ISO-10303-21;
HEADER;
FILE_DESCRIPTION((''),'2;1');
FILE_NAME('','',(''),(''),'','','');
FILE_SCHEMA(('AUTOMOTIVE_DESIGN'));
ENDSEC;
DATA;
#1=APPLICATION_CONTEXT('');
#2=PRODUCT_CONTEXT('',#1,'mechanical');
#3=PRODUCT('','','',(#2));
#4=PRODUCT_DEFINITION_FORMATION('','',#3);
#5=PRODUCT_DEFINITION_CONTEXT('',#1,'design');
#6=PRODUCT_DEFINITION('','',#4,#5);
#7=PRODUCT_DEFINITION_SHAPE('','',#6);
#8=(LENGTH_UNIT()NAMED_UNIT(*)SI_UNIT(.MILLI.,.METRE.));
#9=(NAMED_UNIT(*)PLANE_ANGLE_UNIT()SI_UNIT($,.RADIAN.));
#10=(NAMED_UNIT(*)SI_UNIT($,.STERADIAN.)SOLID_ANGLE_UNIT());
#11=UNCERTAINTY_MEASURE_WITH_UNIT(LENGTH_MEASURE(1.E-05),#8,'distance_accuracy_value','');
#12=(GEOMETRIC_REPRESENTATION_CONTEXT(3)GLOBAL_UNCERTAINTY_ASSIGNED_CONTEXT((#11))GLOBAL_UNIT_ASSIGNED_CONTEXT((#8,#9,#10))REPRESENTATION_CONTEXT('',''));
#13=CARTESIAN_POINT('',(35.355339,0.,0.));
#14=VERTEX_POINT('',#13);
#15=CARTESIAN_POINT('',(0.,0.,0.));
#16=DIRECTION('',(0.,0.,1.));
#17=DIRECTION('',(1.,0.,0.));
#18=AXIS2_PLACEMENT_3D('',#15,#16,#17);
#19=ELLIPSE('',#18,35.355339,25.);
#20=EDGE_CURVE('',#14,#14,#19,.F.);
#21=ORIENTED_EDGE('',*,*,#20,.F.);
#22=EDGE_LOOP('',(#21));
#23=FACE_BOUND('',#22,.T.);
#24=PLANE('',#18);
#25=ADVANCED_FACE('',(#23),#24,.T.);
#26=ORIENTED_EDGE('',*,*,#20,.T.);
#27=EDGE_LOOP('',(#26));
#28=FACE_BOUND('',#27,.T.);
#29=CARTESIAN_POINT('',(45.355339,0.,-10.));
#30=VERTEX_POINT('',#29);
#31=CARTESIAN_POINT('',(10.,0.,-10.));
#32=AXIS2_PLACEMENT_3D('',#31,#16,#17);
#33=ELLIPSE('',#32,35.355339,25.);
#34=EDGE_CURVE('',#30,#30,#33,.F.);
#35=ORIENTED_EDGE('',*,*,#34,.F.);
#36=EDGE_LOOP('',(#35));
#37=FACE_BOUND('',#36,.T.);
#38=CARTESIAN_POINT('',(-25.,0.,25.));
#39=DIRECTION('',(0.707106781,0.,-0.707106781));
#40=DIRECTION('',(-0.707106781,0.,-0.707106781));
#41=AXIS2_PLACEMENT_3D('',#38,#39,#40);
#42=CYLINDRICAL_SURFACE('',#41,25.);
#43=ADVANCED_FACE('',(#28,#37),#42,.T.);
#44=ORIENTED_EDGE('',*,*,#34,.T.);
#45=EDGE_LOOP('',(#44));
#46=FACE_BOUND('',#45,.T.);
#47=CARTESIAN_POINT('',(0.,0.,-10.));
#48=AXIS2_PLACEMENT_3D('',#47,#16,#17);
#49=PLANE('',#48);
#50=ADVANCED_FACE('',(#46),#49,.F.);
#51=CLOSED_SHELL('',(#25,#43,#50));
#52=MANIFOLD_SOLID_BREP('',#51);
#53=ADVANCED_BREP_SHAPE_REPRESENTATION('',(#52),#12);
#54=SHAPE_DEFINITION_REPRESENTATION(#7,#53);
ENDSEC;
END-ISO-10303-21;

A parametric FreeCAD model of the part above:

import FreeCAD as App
import Part
import Sketcher
from FreeCAD import Vector
Q = App.Units.Quantity

doc = App.newDocument("Part")
body = doc.addObject("PartDesign::Body", "Body")

# Sketch on XY plane
sketch1 = body.newObject("Sketcher::SketchObject", "Sketch")
sketch1.AttachmentSupport = (doc.getObject("XY_Plane"), [""])
sketch1.MapMode = "FlatFace"
sketch1.addGeometry(Part.Circle(Vector(0, 0, 0), Vector(0, 0, 1), 50), False)
sketch1.addConstraint(Sketcher.Constraint("Coincident", 0, 3, -1, 1))
sketch1.addConstraint(Sketcher.Constraint("Diameter", 0, Q("100 mm")))
pad1 = body.newObject("PartDesign::Pad", "Pad")
pad1.Profile = sketch1
pad1.Length = 10
pad1.Reversed = True

# Sketch on an angled plane
sketch2 = body.newObject("Sketcher::SketchObject", "Sketch001")
sketch2.Placement = App.Placement(Vector(0, 0, 0), App.Rotation(Vector(0.707106781, 0, 0.707106781), Vector(0, 0.999999999, 0), Vector(-0.707106781, 0, 0.707106781), "ZXY"))
sketch2.addGeometry(Part.Circle(Vector(0, 0, 0), Vector(0, 0, 1), 75), False)
sketch2.addGeometry(Part.Circle(Vector(0, 0, 0), Vector(0, 0, 1), 25), False)
sketch2.addConstraint(Sketcher.Constraint("Coincident", 0, 3, -1, 1))
sketch2.addConstraint(Sketcher.Constraint("Coincident", 1, 3, -1, 1))
sketch2.addConstraint(Sketcher.Constraint("Diameter", 0, Q("150 mm")))
sketch2.addConstraint(Sketcher.Constraint("Diameter", 1, Q("50 mm")))
pocket1 = body.newObject("PartDesign::Pocket", "Pocket")
pocket1.Profile = sketch2
pocket1.Type = "ThroughAll"
pocket1.Midplane = True

doc.recompute()
